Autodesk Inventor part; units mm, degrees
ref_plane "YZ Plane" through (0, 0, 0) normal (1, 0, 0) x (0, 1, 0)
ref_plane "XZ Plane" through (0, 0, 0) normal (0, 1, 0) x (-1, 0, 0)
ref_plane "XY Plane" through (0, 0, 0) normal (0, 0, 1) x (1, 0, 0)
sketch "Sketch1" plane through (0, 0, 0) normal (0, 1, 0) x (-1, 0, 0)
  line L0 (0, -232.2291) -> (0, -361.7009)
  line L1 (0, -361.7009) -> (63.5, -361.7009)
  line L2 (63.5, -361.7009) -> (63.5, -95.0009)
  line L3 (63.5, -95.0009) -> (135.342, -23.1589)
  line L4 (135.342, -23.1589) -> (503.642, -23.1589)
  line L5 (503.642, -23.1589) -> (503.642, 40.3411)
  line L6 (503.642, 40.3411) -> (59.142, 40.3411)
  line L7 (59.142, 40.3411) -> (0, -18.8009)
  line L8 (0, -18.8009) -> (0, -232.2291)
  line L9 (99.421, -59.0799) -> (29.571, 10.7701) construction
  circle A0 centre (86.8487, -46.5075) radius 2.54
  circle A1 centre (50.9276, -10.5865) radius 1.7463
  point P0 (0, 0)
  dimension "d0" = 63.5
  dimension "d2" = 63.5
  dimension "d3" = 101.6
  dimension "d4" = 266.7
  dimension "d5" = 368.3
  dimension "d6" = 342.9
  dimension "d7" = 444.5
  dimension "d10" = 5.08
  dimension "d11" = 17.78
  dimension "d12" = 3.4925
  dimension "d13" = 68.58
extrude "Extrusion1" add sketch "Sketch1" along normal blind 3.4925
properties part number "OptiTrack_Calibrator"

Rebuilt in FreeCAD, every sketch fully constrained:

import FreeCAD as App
import Part
import Sketcher
from FreeCAD import Vector
Q = App.Units.Quantity


def add_polygon(sketch, points):
    """Adds a closed chain of lines whose ends are joined by coincident constraints."""
    first, n = sketch.GeometryCount, len(points)
    for a, b in zip(points, points[1:] + points[:1]):
        sketch.addGeometry(Part.LineSegment(App.Vector(*a, 0), App.Vector(*b, 0)), False)
    for i in range(n):
        sketch.addConstraint(Sketcher.Constraint("Coincident", first + i, 2, first + (i + 1) % n, 1))

doc = App.newDocument("Part")
body = doc.addObject("PartDesign::Body", "Body")

sketch1 = doc.addObject("Sketcher::SketchObject", "Sketch")
body.addObject(sketch1)
sketch1.AttachmentSupport = (doc.XZ_Plane, [""])
sketch1.MapMode = "FlatFace"
add_polygon(sketch1, [(0, -18.8), (0, -361.7), (-63.5, -361.7), (-63.5, -95), (-135.3, -23.2), (-503.6, -23.2), (-503.6, 40.3), (-59.1, 40.3)])
sketch1.addGeometry(Part.Circle(Vector(-50.9, -10.6, 0), Vector(0, 0, 1), 1.7), False)
sketch1.addGeometry(Part.Circle(Vector(-86.8, -46.5, 0), Vector(0, 0, 1), 2.5), False)
sketch1.addConstraint(Sketcher.Constraint("Vertical", 0))
sketch1.addConstraint(Sketcher.Constraint("Horizontal", 1))
sketch1.addConstraint(Sketcher.Constraint("Vertical", 2))
sketch1.addConstraint(Sketcher.Constraint("Horizontal", 4))
sketch1.addConstraint(Sketcher.Constraint("Vertical", 5))
sketch1.addConstraint(Sketcher.Constraint("Horizontal", 6))
sketch1.addConstraint(Sketcher.Constraint("PointOnObject", 0, 2, -2))
sketch1.addConstraint(Sketcher.Constraint("Parallel", 3, 7))
sketch1.addConstraint(Sketcher.Constraint("Equal", 1, 5))
sketch1.addConstraint(Sketcher.Constraint("Diameter", 9, Q("0.2 in")))
sketch1.addConstraint(Sketcher.Constraint("Distance", 3, Q("4 in")))
sketch1.addConstraint(Sketcher.Constraint("DistanceX", 1, 2, 1, 1, Q("2.5 in")))
sketch1.addConstraint(Sketcher.Constraint("DistanceX", 4, 2, 4, 1, Q("14.5 in")))
sketch1.addConstraint(Sketcher.Constraint("DistanceX", 6, 1, 6, 2, Q("17.5 in")))
sketch1.addConstraint(Sketcher.Constraint("DistanceY", 0, 2, 0, 1, Q("13.5 in")))
sketch1.addConstraint(Sketcher.Constraint("DistanceY", 2, 1, 2, 2, Q("10.5 in")))
sketch1.addConstraint(Sketcher.Constraint("Diameter", 8, Q("0.1375 in")))
sketch1.addConstraint(Sketcher.Constraint("DistanceY", 9, 3, -1, 1, Q("1.831 in")))
sketch1.addConstraint(Sketcher.Constraint("DistanceY", 8, 3, -1, 1, Q("0.4168 in")))
sketch1.addConstraint(Sketcher.Constraint("DistanceY", 0, 2, -1, 1, Q("14.2402 in")))
sketch1.addConstraint(Sketcher.Constraint("DistanceX", 3, 2, 8, 3, Q("3.3234 in")))
sketch1.addConstraint(Sketcher.Constraint("DistanceX", 9, 3, -1, 1, 86.8487))
pad1 = doc.addObject("PartDesign::Pad", "Pad")
body.addObject(pad1)
pad1.Profile = sketch1
pad1.Length = Q("0.1375 in")
pad1.Reversed = True

doc.recompute()
